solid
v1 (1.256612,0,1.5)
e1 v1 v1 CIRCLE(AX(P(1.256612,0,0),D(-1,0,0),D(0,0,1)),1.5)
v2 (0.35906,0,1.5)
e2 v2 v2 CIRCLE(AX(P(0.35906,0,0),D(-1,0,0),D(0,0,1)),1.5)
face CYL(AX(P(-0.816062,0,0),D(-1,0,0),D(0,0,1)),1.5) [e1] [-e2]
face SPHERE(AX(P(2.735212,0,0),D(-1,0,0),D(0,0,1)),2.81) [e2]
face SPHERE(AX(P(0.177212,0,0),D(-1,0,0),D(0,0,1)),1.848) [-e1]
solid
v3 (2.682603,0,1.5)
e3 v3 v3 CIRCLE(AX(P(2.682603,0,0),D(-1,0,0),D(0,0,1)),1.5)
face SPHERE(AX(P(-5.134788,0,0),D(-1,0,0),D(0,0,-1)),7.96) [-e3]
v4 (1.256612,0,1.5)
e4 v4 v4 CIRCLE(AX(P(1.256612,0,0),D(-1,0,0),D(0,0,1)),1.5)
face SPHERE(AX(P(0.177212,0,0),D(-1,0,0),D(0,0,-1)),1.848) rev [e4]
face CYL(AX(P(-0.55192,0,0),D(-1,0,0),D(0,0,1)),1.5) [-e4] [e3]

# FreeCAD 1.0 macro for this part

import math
import FreeCAD as App
import Part
import Sketcher
Q = App.Units.Quantity

doc = App.newDocument("Part")
body = doc.addObject("PartDesign::Body", "Body")

sketch1 = doc.addObject("Sketcher::SketchObject", "Sketch")
body.addObject(sketch1)
sketch1.AttachmentSupport = (doc.XZ_Plane, [""])
sketch1.MapMode = "FlatFace"
sketch1.addGeometry(Part.ArcOfCircle(Part.Circle(App.Vector(2.7, 0, 0), App.Vector(0, 0, 1), 2.8), math.radians(-180), math.radians(-148)), False)
sketch1.addGeometry(Part.LineSegment(App.Vector(-0.1, 0, 0), App.Vector(2, 0, 0)), False)
sketch1.addGeometry(Part.ArcOfCircle(Part.Circle(App.Vector(0.2, 0, 0), App.Vector(0, 0, 1), 1.8), math.radians(-54), math.radians(0)), False)
sketch1.addGeometry(Part.LineSegment(App.Vector(1.3, -1.5, 0), App.Vector(0.4, -1.5, 0)), False)
sketch1.addConstraint(Sketcher.Constraint("Coincident", 0, 1, 1, 1))
sketch1.addConstraint(Sketcher.Constraint("Coincident", 1, 2, 2, 2))
sketch1.addConstraint(Sketcher.Constraint("Coincident", 2, 1, 3, 1))
sketch1.addConstraint(Sketcher.Constraint("Coincident", 3, 2, 0, 2))
sketch1.addConstraint(Sketcher.Constraint("Horizontal", 1))
sketch1.addConstraint(Sketcher.Constraint("Horizontal", 3))
sketch1.addConstraint(Sketcher.Constraint("PointOnObject", 0, 3, -1))
sketch1.addConstraint(Sketcher.Constraint("PointOnObject", 2, 3, -1))
sketch1.addConstraint(Sketcher.Constraint("PointOnObject", 0, 1, -1))
sketch1.addConstraint(Sketcher.Constraint("Radius", 0, Q("2.81 mm")))
sketch1.addConstraint(Sketcher.Constraint("DistanceX", 1, 1, 1, 2, Q("2.1 mm")))
sketch1.addConstraint(Sketcher.Constraint("Radius", 2, Q("1.848 mm")))
sketch1.addConstraint(Sketcher.Constraint("DistanceY", 2, 1, -1, 1, Q("1.5 mm")))
sketch1.addConstraint(Sketcher.Constraint("DistanceX", -1, 1, 3, 2, Q("0.35906 mm")))
revolution = doc.addObject("PartDesign::Revolution", "Revolution")
body.addObject(revolution)
revolution.Profile = sketch1
revolution.ReferenceAxis = (sketch1, ["H_Axis"])
revolution.Angle = 360
body2 = doc.addObject("PartDesign::Body", "Body001")

sketch2 = doc.addObject("Sketcher::SketchObject", "Sketch001")
body2.addObject(sketch2)
sketch2.AttachmentSupport = (doc.getObject("XZ_Plane001"), [""])
sketch2.MapMode = "FlatFace"
sketch2.addGeometry(Part.LineSegment(App.Vector(2.7, -1.5, 0), App.Vector(1.3, -1.5, 0)), False)
sketch2.addGeometry(Part.ArcOfCircle(Part.Circle(App.Vector(0.2, 0, 0), App.Vector(0, 0, 1), 1.8), math.radians(-54), math.radians(0)), False)
sketch2.addGeometry(Part.LineSegment(App.Vector(2, 0, 0), App.Vector(2.8, 0, 0)), False)
sketch2.addGeometry(Part.ArcOfCircle(Part.Circle(App.Vector(-5.1, 0, 0), App.Vector(0, 0, 1), 8), math.radians(-10.86), math.radians(0)), False)
sketch2.addConstraint(Sketcher.Constraint("Coincident", 0, 2, 1, 1))
sketch2.addConstraint(Sketcher.Constraint("Coincident", 1, 2, 2, 1))
sketch2.addConstraint(Sketcher.Constraint("Coincident", 2, 2, 3, 2))
sketch2.addConstraint(Sketcher.Constraint("Coincident", 3, 1, 0, 1))
sketch2.addConstraint(Sketcher.Constraint("Horizontal", 0))
sketch2.addConstraint(Sketcher.Constraint("Horizontal", 2))
sketch2.addConstraint(Sketcher.Constraint("PointOnObject", 1, 3, -1))
sketch2.addConstraint(Sketcher.Constraint("PointOnObject", 3, 3, -1))
sketch2.addConstraint(Sketcher.Constraint("PointOnObject", 1, 2, -1))
sketch2.addConstraint(Sketcher.Constraint("Radius", 3, Q("7.96 mm")))
sketch2.addConstraint(Sketcher.Constraint("DistanceX", 2, 1, 2, 2, Q("0.8 mm")))
sketch2.addConstraint(Sketcher.Constraint("Radius", 1, Q("1.848 mm")))
sketch2.addConstraint(Sketcher.Constraint("DistanceY", 0, 2, -1, 1, Q("1.5 mm")))
sketch2.addConstraint(Sketcher.Constraint("DistanceX", -1, 1, 1, 3, Q("0.177212 mm")))
revolution2 = doc.addObject("PartDesign::Revolution", "Revolution001")
body2.addObject(revolution2)
revolution2.Profile = sketch2
revolution2.ReferenceAxis = (sketch2, ["H_Axis"])
revolution2.Angle = 360

doc.recompute()
